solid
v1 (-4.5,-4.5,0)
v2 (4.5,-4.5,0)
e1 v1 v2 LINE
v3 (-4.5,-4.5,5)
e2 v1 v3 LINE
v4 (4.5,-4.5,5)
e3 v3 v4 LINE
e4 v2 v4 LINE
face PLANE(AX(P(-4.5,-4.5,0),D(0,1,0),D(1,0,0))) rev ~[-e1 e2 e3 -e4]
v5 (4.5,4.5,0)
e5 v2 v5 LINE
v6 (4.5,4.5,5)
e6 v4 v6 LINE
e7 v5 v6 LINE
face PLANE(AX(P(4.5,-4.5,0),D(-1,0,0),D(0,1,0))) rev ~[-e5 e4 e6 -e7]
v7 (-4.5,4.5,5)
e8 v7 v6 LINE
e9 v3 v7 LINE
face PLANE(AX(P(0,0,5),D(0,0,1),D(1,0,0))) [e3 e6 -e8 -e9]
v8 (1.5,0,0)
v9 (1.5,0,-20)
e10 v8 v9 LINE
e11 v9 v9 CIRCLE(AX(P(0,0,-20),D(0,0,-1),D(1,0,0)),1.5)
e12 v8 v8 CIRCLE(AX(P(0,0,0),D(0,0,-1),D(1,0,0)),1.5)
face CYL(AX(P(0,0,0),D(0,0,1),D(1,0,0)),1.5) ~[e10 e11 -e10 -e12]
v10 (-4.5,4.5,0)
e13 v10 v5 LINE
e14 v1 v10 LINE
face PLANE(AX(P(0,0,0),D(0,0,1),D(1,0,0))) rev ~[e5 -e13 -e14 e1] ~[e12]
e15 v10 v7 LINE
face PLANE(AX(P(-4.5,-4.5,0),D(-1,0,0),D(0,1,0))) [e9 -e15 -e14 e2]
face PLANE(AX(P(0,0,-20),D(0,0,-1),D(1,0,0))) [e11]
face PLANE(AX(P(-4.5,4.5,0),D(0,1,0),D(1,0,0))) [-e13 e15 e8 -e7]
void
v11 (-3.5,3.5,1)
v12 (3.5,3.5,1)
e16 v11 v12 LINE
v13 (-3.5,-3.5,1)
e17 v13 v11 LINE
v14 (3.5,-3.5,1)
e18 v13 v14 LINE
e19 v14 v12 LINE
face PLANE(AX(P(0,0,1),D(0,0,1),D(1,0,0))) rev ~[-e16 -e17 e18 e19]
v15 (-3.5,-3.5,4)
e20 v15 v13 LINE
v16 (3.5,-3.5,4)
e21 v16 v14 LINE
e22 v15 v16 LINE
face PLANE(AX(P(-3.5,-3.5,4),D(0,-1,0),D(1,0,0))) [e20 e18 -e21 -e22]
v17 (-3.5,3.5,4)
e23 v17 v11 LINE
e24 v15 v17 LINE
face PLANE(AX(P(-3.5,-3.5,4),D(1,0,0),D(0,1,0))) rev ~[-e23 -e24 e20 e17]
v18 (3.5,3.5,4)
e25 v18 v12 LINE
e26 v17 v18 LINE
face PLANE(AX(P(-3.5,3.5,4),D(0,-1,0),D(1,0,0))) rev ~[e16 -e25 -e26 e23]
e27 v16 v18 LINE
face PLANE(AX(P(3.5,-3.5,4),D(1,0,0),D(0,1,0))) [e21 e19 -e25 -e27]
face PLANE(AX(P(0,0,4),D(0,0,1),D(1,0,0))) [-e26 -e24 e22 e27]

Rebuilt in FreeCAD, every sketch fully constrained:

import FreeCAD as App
import Part
import Sketcher
from FreeCAD import Vector
Q = App.Units.Quantity


def add_polygon(sketch, points):
    """Adds a closed chain of lines whose ends are joined by coincident constraints."""
    first, n = sketch.GeometryCount, len(points)
    for a, b in zip(points, points[1:] + points[:1]):
        sketch.addGeometry(Part.LineSegment(App.Vector(*a, 0), App.Vector(*b, 0)), False)
    for i in range(n):
        sketch.addConstraint(Sketcher.Constraint("Coincident", first + i, 2, first + (i + 1) % n, 1))

doc = App.newDocument("Part")
body = doc.addObject("PartDesign::Body", "Body")

# Sketch on XY plane
sketch1 = doc.addObject("Sketcher::SketchObject", "Sketch")
body.addObject(sketch1)
sketch1.AttachmentSupport = (doc.XY_Plane, [""])
sketch1.MapMode = "FlatFace"
add_polygon(sketch1, [(-4, 4), (-4, -4), (4, -4), (4, 4)])  # lines 0-3
sketch1.addConstraint(Sketcher.Constraint("Vertical", 0))
sketch1.addConstraint(Sketcher.Constraint("Horizontal", 1))
sketch1.addConstraint(Sketcher.Constraint("Vertical", 2))
sketch1.addConstraint(Sketcher.Constraint("Horizontal", 3))
sketch1.addConstraint(Sketcher.Constraint("Symmetric", 0, 2, 2, 2, -1, 1))
sketch1.addConstraint(Sketcher.Constraint("Equal", 3, 0))
sketch1.addConstraint(Sketcher.Constraint("DistanceX", 1, 1, 1, 2, Q("9 mm")))
pad1 = doc.addObject("PartDesign::Pad", "Pad")
body.addObject(pad1)
pad1.Profile = sketch1
pad1.Length = 5

# Sketch on XY plane
sketch2 = doc.addObject("Sketcher::SketchObject", "Sketch001")
body.addObject(sketch2)
sketch2.AttachmentSupport = (doc.XY_Plane, [""])
sketch2.MapMode = "FlatFace"
sketch2.addGeometry(Part.Circle(Vector(0, 0, 0), Vector(0, 0, 1), 1.5), False)
sketch2.addConstraint(Sketcher.Constraint("Coincident", 0, 3, -1, 1))
sketch2.addConstraint(Sketcher.Constraint("Diameter", 0, Q("3 mm")))
pad2 = doc.addObject("PartDesign::Pad", "Pad001")
body.addObject(pad2)
pad2.Profile = sketch2
pad2.Length = 20
pad2.Reversed = True

# Sketch on XY plane
sketch3 = doc.addObject("Sketcher::SketchObject", "Sketch002")
body.addObject(sketch3)
sketch3.AttachmentSupport = (doc.XY_Plane, [""])
sketch3.MapMode = "FlatFace"
sketch3.AttachmentOffset = App.Placement(Vector(0, 0, 4), App.Rotation())
add_polygon(sketch3, [(-4, 4), (-4, -4), (4, -4), (4, 4)])  # lines 0-3
sketch3.addConstraint(Sketcher.Constraint("Vertical", 0))
sketch3.addConstraint(Sketcher.Constraint("Horizontal", 1))
sketch3.addConstraint(Sketcher.Constraint("Vertical", 2))
sketch3.addConstraint(Sketcher.Constraint("Horizontal", 3))
sketch3.addConstraint(Sketcher.Constraint("Symmetric", 0, 2, 2, 2, -1, 1))
sketch3.addConstraint(Sketcher.Constraint("Equal", 3, 0))
sketch3.addConstraint(Sketcher.Constraint("DistanceX", 1, 1, 1, 2, Q("7 mm")))
pocket1 = doc.addObject("PartDesign::Pocket", "Pocket")
body.addObject(pocket1)
pocket1.Profile = sketch3
pocket1.Length = 3

doc.recompute()
